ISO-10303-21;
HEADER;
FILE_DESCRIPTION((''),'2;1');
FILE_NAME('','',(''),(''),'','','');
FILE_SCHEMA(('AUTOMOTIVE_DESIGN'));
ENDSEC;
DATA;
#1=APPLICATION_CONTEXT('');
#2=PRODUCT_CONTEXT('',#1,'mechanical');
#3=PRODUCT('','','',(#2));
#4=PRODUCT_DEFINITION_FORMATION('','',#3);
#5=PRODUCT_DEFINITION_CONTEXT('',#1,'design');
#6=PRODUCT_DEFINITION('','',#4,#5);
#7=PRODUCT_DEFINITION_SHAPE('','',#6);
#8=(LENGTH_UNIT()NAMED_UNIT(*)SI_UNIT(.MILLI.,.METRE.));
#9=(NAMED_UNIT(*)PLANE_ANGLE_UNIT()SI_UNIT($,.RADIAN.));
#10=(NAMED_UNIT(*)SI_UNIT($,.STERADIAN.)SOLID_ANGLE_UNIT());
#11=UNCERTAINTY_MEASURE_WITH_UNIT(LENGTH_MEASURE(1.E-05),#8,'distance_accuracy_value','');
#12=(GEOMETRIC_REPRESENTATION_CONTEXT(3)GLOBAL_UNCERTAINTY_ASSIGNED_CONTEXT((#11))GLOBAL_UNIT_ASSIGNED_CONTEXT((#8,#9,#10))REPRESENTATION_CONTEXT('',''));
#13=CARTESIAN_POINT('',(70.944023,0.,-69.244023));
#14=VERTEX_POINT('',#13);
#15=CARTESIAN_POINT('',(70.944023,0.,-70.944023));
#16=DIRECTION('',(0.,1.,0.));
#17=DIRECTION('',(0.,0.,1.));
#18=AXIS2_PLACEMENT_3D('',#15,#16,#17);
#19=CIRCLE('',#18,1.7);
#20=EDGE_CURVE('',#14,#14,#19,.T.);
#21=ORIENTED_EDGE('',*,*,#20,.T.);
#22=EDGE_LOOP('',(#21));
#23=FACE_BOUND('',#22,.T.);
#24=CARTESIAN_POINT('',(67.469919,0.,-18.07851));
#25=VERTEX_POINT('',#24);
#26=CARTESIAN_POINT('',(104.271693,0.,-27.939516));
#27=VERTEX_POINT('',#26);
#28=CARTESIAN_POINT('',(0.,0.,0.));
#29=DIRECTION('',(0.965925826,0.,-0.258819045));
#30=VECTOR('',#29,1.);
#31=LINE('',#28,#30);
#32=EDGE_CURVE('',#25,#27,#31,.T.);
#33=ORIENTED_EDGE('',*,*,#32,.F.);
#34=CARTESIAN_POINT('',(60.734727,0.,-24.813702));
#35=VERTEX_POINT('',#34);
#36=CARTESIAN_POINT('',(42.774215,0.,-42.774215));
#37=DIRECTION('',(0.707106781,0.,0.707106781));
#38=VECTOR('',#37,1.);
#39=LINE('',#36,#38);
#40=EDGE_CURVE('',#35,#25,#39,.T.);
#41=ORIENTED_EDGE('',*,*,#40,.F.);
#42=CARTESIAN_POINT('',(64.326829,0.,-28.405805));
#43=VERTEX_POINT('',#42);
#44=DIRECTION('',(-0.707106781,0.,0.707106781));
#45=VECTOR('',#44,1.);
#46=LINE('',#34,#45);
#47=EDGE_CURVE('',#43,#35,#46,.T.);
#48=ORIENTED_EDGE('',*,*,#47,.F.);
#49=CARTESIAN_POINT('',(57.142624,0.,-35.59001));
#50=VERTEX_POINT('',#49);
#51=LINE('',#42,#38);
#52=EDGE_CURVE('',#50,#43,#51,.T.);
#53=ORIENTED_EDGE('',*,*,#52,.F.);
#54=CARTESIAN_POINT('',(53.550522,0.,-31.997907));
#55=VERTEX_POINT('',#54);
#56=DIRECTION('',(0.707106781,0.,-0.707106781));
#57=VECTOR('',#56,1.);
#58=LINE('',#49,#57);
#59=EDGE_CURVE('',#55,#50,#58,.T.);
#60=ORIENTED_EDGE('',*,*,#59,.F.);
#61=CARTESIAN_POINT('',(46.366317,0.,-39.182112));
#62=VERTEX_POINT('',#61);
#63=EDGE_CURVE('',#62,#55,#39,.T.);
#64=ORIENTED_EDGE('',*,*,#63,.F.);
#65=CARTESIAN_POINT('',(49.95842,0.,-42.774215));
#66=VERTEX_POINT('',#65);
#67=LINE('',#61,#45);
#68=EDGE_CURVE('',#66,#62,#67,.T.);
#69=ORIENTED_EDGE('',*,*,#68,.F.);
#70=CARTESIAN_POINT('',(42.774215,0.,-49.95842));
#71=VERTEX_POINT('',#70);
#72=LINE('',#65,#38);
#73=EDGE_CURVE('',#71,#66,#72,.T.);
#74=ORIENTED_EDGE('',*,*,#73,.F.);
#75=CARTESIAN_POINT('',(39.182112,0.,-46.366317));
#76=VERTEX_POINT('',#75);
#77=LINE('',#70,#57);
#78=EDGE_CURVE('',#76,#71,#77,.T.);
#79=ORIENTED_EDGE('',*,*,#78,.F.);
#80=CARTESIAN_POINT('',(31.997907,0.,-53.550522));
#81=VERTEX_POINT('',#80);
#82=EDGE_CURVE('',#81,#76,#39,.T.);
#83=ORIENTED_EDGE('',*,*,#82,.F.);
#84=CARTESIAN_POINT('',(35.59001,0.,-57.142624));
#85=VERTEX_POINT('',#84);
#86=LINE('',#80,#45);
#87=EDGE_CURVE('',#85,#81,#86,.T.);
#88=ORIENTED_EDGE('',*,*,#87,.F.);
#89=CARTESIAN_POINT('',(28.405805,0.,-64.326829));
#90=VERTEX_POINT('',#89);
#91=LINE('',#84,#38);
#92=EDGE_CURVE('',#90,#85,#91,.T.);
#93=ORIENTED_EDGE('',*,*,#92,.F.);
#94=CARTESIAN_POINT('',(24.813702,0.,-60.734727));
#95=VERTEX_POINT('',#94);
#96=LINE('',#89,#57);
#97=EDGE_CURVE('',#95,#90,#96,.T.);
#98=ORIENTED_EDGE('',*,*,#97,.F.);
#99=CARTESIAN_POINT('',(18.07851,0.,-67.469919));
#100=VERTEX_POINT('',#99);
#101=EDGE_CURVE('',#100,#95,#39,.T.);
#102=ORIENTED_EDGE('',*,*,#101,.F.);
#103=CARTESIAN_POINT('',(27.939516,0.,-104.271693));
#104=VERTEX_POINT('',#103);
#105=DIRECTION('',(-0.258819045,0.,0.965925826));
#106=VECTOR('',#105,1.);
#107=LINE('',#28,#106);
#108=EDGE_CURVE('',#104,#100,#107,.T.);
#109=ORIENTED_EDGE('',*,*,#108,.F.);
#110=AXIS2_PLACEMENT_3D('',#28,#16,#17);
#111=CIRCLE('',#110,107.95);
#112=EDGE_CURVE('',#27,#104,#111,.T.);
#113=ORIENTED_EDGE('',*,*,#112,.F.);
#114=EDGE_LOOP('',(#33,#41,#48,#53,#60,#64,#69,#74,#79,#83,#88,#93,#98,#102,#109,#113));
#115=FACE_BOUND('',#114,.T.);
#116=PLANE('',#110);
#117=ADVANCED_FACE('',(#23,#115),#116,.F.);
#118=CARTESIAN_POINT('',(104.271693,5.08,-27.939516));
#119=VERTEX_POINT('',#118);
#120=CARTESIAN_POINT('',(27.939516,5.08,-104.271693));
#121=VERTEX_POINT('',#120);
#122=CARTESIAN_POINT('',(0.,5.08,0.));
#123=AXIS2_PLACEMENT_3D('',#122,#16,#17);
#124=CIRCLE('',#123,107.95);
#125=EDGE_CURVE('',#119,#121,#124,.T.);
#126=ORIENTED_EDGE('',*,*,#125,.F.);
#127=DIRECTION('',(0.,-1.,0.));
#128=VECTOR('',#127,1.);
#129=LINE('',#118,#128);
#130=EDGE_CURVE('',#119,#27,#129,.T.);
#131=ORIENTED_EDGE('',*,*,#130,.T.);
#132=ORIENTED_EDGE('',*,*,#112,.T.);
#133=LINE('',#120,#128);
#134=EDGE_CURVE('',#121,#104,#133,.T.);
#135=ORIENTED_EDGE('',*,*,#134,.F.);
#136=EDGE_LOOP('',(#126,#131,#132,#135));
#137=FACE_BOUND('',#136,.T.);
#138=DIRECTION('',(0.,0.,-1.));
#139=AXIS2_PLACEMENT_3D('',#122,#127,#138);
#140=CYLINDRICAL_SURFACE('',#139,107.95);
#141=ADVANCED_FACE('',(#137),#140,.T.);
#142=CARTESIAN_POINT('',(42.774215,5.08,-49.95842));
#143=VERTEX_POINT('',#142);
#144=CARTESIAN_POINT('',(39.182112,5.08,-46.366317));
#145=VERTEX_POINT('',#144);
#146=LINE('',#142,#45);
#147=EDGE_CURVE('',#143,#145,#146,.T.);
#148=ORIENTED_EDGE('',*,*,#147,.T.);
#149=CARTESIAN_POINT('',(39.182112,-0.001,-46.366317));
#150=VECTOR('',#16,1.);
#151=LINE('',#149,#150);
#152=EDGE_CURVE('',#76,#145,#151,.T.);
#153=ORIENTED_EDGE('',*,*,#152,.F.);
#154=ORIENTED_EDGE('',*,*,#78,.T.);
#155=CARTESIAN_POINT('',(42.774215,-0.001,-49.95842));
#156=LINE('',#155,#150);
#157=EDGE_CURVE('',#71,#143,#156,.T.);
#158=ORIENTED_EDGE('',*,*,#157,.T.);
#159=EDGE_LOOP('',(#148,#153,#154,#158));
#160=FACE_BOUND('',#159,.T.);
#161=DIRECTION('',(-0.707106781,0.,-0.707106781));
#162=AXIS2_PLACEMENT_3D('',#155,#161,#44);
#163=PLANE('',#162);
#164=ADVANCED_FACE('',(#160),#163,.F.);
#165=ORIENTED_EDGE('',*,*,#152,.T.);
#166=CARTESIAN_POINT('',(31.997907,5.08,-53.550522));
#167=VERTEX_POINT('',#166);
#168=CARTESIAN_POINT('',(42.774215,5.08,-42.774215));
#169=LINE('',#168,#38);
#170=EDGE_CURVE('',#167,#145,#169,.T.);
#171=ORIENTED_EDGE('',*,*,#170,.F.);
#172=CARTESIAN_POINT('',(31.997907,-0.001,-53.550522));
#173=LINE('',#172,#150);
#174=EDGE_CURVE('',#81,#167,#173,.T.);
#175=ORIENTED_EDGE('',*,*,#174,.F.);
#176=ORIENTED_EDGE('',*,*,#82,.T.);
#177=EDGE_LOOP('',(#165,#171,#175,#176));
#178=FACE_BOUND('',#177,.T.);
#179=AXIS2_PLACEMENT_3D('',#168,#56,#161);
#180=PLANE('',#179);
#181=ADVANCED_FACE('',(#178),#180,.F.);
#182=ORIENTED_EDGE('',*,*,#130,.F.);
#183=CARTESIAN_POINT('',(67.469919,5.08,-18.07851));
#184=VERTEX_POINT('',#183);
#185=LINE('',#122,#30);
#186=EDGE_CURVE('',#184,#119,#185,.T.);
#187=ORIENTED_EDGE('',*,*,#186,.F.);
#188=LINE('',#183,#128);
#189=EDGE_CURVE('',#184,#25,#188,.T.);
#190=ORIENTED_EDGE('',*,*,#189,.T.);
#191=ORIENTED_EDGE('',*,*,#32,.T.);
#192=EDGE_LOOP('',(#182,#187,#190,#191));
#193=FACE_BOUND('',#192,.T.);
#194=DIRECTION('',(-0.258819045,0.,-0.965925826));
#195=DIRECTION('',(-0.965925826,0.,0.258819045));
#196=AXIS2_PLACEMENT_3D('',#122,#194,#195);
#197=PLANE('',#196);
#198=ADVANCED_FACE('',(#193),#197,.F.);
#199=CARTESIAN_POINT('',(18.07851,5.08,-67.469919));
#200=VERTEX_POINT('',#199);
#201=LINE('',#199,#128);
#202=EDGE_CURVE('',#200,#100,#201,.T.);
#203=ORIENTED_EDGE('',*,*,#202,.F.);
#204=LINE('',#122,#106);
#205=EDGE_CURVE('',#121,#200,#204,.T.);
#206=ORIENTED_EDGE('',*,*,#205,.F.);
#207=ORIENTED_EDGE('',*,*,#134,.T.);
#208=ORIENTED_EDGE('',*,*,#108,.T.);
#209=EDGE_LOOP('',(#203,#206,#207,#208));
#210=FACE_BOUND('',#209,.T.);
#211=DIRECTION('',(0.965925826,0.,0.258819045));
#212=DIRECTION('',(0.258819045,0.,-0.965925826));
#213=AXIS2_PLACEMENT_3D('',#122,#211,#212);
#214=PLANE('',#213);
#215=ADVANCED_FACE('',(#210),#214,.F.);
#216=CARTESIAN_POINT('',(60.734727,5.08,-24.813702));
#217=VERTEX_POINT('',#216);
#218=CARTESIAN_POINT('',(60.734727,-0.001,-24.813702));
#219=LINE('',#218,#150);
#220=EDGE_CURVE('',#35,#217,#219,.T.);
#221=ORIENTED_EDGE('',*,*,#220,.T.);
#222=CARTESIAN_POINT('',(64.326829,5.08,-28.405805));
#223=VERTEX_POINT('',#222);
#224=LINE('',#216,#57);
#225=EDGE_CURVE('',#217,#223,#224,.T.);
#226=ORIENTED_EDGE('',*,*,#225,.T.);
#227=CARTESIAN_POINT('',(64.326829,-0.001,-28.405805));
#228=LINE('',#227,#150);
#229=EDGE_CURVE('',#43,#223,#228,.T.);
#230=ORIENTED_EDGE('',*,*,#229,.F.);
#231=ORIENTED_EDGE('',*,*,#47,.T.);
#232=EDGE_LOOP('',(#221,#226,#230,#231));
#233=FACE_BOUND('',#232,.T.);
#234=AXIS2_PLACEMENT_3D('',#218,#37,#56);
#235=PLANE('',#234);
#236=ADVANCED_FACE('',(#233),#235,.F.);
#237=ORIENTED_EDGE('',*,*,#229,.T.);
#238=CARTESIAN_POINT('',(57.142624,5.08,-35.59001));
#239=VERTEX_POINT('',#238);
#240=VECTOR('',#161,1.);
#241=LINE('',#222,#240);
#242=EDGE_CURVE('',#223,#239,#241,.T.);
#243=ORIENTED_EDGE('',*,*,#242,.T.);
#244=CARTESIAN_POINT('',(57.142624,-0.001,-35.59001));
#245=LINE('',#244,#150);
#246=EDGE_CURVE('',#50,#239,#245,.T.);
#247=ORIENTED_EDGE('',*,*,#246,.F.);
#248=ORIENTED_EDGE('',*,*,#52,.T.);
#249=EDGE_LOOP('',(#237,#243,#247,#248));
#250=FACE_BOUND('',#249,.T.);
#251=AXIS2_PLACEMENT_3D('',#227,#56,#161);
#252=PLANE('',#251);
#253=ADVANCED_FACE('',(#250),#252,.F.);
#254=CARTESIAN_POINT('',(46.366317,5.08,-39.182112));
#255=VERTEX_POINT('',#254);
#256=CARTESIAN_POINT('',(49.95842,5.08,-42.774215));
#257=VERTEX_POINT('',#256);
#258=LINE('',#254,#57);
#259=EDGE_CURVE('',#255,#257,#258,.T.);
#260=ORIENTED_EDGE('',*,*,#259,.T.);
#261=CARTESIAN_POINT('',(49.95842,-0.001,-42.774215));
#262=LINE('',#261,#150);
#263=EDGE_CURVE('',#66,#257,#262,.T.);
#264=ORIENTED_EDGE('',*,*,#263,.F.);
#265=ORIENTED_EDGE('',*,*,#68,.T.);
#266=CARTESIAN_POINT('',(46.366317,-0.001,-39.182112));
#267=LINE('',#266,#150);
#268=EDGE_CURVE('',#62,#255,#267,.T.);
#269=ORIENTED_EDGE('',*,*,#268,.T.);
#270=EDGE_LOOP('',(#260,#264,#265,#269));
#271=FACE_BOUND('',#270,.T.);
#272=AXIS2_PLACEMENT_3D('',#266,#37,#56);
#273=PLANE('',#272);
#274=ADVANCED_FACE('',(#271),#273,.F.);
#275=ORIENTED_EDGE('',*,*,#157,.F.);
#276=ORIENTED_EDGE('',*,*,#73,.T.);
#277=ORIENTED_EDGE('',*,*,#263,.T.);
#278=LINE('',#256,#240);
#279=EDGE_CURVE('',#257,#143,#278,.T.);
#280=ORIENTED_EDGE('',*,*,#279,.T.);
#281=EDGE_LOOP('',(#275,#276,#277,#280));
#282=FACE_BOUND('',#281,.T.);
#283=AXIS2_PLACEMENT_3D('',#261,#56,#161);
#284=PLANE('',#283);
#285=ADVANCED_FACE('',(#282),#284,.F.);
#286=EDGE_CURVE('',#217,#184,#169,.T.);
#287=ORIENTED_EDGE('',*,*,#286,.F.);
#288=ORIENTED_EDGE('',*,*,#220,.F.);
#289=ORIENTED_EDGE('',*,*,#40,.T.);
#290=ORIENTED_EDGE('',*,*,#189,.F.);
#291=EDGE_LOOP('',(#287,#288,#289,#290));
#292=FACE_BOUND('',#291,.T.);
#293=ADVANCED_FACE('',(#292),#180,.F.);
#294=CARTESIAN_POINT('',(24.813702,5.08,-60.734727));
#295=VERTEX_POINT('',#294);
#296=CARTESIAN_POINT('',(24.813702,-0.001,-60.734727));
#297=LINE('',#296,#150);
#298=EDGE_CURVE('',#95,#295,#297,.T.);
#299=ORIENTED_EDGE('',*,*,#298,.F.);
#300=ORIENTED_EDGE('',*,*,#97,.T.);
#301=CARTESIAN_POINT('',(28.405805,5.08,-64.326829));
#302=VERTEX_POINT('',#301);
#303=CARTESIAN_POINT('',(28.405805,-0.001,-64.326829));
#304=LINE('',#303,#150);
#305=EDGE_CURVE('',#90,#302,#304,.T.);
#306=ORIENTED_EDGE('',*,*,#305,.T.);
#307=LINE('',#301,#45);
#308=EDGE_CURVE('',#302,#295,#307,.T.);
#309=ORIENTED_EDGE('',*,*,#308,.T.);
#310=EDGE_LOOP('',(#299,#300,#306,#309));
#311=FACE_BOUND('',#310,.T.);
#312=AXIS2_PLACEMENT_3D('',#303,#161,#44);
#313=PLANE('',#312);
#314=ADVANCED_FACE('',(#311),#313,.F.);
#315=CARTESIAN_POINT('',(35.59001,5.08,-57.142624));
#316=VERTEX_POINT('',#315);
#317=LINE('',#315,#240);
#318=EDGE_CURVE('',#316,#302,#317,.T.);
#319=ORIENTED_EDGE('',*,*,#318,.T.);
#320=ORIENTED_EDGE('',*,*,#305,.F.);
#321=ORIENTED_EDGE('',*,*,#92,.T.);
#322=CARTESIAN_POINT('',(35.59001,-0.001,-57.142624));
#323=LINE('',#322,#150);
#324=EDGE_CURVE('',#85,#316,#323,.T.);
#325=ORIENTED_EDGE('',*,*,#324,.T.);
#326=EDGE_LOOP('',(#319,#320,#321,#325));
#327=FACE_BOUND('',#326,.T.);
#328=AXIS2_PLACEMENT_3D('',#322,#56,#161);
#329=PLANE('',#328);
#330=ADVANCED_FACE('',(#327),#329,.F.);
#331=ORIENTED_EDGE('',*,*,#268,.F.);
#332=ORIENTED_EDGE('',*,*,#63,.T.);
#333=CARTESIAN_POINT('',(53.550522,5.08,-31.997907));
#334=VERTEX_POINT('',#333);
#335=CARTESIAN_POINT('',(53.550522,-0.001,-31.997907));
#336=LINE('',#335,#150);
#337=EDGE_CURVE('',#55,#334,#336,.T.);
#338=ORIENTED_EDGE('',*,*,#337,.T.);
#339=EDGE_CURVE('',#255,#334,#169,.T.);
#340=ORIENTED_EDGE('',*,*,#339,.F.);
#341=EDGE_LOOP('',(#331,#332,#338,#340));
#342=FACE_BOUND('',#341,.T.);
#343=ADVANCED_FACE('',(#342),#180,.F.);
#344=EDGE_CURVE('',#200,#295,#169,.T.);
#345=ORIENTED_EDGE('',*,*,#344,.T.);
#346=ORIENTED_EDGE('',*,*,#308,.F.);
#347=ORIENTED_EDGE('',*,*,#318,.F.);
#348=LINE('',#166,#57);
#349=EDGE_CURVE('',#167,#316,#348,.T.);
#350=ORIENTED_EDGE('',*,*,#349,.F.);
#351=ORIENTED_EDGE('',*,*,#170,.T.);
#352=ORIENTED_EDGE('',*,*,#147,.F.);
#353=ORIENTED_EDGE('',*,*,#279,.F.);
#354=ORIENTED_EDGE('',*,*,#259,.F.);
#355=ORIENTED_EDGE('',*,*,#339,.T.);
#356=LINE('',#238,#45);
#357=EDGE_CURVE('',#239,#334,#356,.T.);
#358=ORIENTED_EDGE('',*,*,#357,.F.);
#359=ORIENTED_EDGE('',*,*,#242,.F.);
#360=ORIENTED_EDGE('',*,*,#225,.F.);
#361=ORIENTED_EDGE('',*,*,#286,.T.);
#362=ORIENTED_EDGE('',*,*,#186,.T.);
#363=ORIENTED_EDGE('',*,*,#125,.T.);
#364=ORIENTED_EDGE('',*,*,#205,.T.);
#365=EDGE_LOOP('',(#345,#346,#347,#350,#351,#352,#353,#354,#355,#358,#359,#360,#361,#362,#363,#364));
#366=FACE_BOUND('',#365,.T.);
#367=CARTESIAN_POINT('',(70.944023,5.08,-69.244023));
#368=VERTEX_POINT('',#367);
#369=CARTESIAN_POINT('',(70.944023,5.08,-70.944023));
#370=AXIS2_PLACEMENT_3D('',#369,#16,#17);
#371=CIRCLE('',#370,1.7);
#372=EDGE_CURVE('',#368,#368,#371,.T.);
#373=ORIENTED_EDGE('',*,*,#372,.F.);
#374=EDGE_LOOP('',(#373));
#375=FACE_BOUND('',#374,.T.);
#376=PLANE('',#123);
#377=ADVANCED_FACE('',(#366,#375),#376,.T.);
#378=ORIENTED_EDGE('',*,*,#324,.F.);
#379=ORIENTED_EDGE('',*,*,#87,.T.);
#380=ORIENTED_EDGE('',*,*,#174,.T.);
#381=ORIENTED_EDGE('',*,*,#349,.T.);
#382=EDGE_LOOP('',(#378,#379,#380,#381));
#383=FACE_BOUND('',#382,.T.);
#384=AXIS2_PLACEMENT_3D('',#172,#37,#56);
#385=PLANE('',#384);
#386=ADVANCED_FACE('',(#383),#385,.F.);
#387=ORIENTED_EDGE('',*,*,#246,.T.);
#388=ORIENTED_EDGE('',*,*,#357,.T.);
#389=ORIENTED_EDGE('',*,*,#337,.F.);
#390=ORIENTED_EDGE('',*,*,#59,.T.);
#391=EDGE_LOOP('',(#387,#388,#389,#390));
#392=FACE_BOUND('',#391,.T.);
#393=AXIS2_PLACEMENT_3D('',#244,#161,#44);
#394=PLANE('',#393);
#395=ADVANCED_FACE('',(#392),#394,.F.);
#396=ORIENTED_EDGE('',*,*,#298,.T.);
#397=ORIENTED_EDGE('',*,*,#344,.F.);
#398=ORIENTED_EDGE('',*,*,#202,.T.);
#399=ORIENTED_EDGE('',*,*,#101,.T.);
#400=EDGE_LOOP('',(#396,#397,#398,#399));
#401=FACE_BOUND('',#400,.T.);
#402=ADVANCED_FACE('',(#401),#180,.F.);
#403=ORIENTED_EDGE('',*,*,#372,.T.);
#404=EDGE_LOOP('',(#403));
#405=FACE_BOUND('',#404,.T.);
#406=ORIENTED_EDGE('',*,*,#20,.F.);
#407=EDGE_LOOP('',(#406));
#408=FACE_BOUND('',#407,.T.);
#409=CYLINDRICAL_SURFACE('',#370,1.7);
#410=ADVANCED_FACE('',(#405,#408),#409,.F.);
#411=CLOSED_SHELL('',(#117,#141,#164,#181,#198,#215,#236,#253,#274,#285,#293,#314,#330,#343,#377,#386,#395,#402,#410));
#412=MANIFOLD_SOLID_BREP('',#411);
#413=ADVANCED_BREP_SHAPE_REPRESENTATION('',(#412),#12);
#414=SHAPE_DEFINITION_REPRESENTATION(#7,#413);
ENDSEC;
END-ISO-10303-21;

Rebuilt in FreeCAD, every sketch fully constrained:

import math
import FreeCAD as App
import Part
import Sketcher
Q = App.Units.Quantity


def add_polygon(sketch, points):
    """Adds a closed chain of lines whose ends are joined by coincident constraints."""
    first, n = sketch.GeometryCount, len(points)
    for a, b in zip(points, points[1:] + points[:1]):
        sketch.addGeometry(Part.LineSegment(App.Vector(*a, 0), App.Vector(*b, 0)), False)
    for i in range(n):
        sketch.addConstraint(Sketcher.Constraint("Coincident", first + i, 2, first + (i + 1) % n, 1))

doc = App.newDocument("Part")
body = doc.addObject("PartDesign::Body", "Body")

# Sketch on XZ plane
sketch1 = body.newObject("Sketcher::SketchObject", "Sketch")
sketch1.AttachmentSupport = (doc.getObject("XZ_Plane"), [""])
sketch1.MapMode = "FlatFace"
sketch1.addGeometry([
    Part.LineSegment(App.Vector(27.939516, -104.271693, 0), App.Vector(18.07851, -67.469919, 0)),
    Part.LineSegment(App.Vector(18.07851, -67.469919, 0), App.Vector(67.469919, -18.07851, 0)),
    Part.LineSegment(App.Vector(67.469919, -18.07851, 0), App.Vector(104.271693, -27.939516, 0)),
    Part.ArcOfCircle(Part.Circle(App.Vector(0, 0, 0), App.Vector(0, 0, 1), 107.95), math.radians(-75), math.radians(-15)),
], False)
sketch1.addConstraint([
    Sketcher.Constraint("Coincident", 0, 2, 1, 1),
    Sketcher.Constraint("Coincident", 1, 2, 2, 1),
    Sketcher.Constraint("Coincident", 2, 2, 3, 2),
    Sketcher.Constraint("Coincident", 3, 1, 0, 1),
    Sketcher.Constraint("Coincident", 3, 3, -1, 1),
    Sketcher.Constraint("Equal", 0, 2),
    Sketcher.Constraint("Radius", 3, Q("4.25 in")),
    Sketcher.Constraint("Angle", 0, Q("105 deg")),
    Sketcher.Constraint("Angle", 1, Q("45 deg")),
    Sketcher.Constraint("Angle", 2, Q("-15 deg")),
    Sketcher.Constraint("Distance", 0, Q("1.5 in")),
    Sketcher.Constraint("Distance", 1, Q("2.75 in")),
])
pad1 = body.newObject("PartDesign::Pad", "Pad")
pad1.Profile = sketch1
pad1.Length = Q("0.2 in")
pad1.Reversed = True

# Sketch on XZ plane
sketch2 = body.newObject("Sketcher::SketchObject", "Sketch001")
sketch2.AttachmentSupport = (doc.getObject("XZ_Plane"), [""])
sketch2.MapMode = "FlatFace"
sketch2.AttachmentOffset = App.Placement(App.Vector(0, 0, -0.2 * 25.4), App.Rotation())
sketch2.addGeometry(Part.Circle(App.Vector(70.944023, -70.944023, 0), App.Vector(0, 0, 1), 1.7), False)
sketch2.addConstraint([
    Sketcher.Constraint("Diameter", 0, Q("3.4 mm")),
    Sketcher.Constraint("DistanceX", -1, 1, 0, 3, Q("70.944023 mm")),
    Sketcher.Constraint("DistanceY", 0, 3, -1, 1, Q("70.944023 mm")),
])
doc.recompute()
hole = body.newObject("PartDesign::Hole", "Hole")
hole.Profile = sketch2
hole.ThreadType = "None"
hole.Diameter = 3.4
hole.DepthType = "Dimension"
hole.Depth = Q("0.47 in")
hole.DrillPoint = "Angled"
hole.DrillPointAngle = 118
hole.Reversed = True

# Sketch on XZ plane
sketch3 = body.newObject("Sketcher::SketchObject", "Sketch002")
sketch3.AttachmentSupport = (doc.getObject("XZ_Plane"), [""])
sketch3.MapMode = "FlatFace"
sketch3.AttachmentOffset = App.Placement(App.Vector(0, 0, -0.2 * 25.4), App.Rotation())
add_polygon(sketch3, [(64.326829, -28.405805), (57.142624, -35.59001), (53.550522, -31.997907), (60.734727, -24.813702)])  # lines 0-3
sketch3.addConstraint([
    Sketcher.Constraint("Perpendicular", 0, 1),
    Sketcher.Constraint("Perpendicular", 1, 2),
    Sketcher.Constraint("Perpendicular", 2, 3),
    Sketcher.Constraint("Angle", 0, Q("-135 deg")),
    Sketcher.Constraint("Distance", 0, Q("0.4 in")),
    Sketcher.Constraint("Distance", 1, Q("0.2 in")),
    Sketcher.Constraint("DistanceY", 0, 2, -1, 1, Q("35.59001 mm")),
    Sketcher.Constraint("DistanceX", -1, 1, 1, 2, Q("53.550522 mm")),
])
pocket1 = body.newObject("PartDesign::Pocket", "Pocket")
pocket1.Profile = sketch3
pocket1.Type = "UpToFirst"
pocket1.Reversed = True

# Sketch on XZ plane
sketch4 = body.newObject("Sketcher::SketchObject", "Sketch003")
sketch4.AttachmentSupport = (doc.getObject("XZ_Plane"), [""])
sketch4.MapMode = "FlatFace"
sketch4.AttachmentOffset = App.Placement(App.Vector(0, 0, -0.2 * 25.4), App.Rotation())
add_polygon(sketch4, [(49.95842, -42.774215), (42.774215, -49.95842), (39.182112, -46.366317), (46.366317, -39.182112)])  # lines 0-3
sketch4.addConstraint([
    Sketcher.Constraint("Perpendicular", 0, 1),
    Sketcher.Constraint("Perpendicular", 1, 2),
    Sketcher.Constraint("Perpendicular", 2, 3),
    Sketcher.Constraint("Angle", 0, Q("-135 deg")),
    Sketcher.Constraint("Distance", 0, Q("0.4 in")),
    Sketcher.Constraint("Distance", 1, Q("0.2 in")),
    Sketcher.Constraint("DistanceY", 0, 2, -1, 1, Q("49.95842 mm")),
    Sketcher.Constraint("DistanceX", -1, 1, 3, 2, Q("49.95842 mm")),
])
pocket2 = body.newObject("PartDesign::Pocket", "Pocket001")
pocket2.Profile = sketch4
pocket2.Type = "UpToFirst"
pocket2.Reversed = True

# Sketch on XZ plane
sketch5 = body.newObject("Sketcher::SketchObject", "Sketch004")
sketch5.AttachmentSupport = (doc.getObject("XZ_Plane"), [""])
sketch5.MapMode = "FlatFace"
sketch5.AttachmentOffset = App.Placement(App.Vector(0, 0, -0.2 * 25.4), App.Rotation())
add_polygon(sketch5, [(24.813702, -60.734727), (31.997907, -53.550522), (35.59001, -57.142624), (28.405805, -64.326829)])  # lines 0-3
sketch5.addConstraint([
    Sketcher.Constraint("Perpendicular", 0, 1),
    Sketcher.Constraint("Perpendicular", 1, 2),
    Sketcher.Constraint("Perpendicular", 2, 3),
    Sketcher.Constraint("Angle", 0, Q("45 deg")),
    Sketcher.Constraint("Distance", 0, Q("0.4 in")),
    Sketcher.Constraint("Distance", 1, Q("0.2 in")),
    Sketcher.Constraint("DistanceY", 0, 2, -1, 1, Q("53.550522 mm")),
    Sketcher.Constraint("DistanceX", -1, 1, 1, 2, Q("35.59001 mm")),
])
pocket3 = body.newObject("PartDesign::Pocket", "Pocket002")
pocket3.Profile = sketch5
pocket3.Type = "UpToFirst"
pocket3.Reversed = True

doc.recompute()
